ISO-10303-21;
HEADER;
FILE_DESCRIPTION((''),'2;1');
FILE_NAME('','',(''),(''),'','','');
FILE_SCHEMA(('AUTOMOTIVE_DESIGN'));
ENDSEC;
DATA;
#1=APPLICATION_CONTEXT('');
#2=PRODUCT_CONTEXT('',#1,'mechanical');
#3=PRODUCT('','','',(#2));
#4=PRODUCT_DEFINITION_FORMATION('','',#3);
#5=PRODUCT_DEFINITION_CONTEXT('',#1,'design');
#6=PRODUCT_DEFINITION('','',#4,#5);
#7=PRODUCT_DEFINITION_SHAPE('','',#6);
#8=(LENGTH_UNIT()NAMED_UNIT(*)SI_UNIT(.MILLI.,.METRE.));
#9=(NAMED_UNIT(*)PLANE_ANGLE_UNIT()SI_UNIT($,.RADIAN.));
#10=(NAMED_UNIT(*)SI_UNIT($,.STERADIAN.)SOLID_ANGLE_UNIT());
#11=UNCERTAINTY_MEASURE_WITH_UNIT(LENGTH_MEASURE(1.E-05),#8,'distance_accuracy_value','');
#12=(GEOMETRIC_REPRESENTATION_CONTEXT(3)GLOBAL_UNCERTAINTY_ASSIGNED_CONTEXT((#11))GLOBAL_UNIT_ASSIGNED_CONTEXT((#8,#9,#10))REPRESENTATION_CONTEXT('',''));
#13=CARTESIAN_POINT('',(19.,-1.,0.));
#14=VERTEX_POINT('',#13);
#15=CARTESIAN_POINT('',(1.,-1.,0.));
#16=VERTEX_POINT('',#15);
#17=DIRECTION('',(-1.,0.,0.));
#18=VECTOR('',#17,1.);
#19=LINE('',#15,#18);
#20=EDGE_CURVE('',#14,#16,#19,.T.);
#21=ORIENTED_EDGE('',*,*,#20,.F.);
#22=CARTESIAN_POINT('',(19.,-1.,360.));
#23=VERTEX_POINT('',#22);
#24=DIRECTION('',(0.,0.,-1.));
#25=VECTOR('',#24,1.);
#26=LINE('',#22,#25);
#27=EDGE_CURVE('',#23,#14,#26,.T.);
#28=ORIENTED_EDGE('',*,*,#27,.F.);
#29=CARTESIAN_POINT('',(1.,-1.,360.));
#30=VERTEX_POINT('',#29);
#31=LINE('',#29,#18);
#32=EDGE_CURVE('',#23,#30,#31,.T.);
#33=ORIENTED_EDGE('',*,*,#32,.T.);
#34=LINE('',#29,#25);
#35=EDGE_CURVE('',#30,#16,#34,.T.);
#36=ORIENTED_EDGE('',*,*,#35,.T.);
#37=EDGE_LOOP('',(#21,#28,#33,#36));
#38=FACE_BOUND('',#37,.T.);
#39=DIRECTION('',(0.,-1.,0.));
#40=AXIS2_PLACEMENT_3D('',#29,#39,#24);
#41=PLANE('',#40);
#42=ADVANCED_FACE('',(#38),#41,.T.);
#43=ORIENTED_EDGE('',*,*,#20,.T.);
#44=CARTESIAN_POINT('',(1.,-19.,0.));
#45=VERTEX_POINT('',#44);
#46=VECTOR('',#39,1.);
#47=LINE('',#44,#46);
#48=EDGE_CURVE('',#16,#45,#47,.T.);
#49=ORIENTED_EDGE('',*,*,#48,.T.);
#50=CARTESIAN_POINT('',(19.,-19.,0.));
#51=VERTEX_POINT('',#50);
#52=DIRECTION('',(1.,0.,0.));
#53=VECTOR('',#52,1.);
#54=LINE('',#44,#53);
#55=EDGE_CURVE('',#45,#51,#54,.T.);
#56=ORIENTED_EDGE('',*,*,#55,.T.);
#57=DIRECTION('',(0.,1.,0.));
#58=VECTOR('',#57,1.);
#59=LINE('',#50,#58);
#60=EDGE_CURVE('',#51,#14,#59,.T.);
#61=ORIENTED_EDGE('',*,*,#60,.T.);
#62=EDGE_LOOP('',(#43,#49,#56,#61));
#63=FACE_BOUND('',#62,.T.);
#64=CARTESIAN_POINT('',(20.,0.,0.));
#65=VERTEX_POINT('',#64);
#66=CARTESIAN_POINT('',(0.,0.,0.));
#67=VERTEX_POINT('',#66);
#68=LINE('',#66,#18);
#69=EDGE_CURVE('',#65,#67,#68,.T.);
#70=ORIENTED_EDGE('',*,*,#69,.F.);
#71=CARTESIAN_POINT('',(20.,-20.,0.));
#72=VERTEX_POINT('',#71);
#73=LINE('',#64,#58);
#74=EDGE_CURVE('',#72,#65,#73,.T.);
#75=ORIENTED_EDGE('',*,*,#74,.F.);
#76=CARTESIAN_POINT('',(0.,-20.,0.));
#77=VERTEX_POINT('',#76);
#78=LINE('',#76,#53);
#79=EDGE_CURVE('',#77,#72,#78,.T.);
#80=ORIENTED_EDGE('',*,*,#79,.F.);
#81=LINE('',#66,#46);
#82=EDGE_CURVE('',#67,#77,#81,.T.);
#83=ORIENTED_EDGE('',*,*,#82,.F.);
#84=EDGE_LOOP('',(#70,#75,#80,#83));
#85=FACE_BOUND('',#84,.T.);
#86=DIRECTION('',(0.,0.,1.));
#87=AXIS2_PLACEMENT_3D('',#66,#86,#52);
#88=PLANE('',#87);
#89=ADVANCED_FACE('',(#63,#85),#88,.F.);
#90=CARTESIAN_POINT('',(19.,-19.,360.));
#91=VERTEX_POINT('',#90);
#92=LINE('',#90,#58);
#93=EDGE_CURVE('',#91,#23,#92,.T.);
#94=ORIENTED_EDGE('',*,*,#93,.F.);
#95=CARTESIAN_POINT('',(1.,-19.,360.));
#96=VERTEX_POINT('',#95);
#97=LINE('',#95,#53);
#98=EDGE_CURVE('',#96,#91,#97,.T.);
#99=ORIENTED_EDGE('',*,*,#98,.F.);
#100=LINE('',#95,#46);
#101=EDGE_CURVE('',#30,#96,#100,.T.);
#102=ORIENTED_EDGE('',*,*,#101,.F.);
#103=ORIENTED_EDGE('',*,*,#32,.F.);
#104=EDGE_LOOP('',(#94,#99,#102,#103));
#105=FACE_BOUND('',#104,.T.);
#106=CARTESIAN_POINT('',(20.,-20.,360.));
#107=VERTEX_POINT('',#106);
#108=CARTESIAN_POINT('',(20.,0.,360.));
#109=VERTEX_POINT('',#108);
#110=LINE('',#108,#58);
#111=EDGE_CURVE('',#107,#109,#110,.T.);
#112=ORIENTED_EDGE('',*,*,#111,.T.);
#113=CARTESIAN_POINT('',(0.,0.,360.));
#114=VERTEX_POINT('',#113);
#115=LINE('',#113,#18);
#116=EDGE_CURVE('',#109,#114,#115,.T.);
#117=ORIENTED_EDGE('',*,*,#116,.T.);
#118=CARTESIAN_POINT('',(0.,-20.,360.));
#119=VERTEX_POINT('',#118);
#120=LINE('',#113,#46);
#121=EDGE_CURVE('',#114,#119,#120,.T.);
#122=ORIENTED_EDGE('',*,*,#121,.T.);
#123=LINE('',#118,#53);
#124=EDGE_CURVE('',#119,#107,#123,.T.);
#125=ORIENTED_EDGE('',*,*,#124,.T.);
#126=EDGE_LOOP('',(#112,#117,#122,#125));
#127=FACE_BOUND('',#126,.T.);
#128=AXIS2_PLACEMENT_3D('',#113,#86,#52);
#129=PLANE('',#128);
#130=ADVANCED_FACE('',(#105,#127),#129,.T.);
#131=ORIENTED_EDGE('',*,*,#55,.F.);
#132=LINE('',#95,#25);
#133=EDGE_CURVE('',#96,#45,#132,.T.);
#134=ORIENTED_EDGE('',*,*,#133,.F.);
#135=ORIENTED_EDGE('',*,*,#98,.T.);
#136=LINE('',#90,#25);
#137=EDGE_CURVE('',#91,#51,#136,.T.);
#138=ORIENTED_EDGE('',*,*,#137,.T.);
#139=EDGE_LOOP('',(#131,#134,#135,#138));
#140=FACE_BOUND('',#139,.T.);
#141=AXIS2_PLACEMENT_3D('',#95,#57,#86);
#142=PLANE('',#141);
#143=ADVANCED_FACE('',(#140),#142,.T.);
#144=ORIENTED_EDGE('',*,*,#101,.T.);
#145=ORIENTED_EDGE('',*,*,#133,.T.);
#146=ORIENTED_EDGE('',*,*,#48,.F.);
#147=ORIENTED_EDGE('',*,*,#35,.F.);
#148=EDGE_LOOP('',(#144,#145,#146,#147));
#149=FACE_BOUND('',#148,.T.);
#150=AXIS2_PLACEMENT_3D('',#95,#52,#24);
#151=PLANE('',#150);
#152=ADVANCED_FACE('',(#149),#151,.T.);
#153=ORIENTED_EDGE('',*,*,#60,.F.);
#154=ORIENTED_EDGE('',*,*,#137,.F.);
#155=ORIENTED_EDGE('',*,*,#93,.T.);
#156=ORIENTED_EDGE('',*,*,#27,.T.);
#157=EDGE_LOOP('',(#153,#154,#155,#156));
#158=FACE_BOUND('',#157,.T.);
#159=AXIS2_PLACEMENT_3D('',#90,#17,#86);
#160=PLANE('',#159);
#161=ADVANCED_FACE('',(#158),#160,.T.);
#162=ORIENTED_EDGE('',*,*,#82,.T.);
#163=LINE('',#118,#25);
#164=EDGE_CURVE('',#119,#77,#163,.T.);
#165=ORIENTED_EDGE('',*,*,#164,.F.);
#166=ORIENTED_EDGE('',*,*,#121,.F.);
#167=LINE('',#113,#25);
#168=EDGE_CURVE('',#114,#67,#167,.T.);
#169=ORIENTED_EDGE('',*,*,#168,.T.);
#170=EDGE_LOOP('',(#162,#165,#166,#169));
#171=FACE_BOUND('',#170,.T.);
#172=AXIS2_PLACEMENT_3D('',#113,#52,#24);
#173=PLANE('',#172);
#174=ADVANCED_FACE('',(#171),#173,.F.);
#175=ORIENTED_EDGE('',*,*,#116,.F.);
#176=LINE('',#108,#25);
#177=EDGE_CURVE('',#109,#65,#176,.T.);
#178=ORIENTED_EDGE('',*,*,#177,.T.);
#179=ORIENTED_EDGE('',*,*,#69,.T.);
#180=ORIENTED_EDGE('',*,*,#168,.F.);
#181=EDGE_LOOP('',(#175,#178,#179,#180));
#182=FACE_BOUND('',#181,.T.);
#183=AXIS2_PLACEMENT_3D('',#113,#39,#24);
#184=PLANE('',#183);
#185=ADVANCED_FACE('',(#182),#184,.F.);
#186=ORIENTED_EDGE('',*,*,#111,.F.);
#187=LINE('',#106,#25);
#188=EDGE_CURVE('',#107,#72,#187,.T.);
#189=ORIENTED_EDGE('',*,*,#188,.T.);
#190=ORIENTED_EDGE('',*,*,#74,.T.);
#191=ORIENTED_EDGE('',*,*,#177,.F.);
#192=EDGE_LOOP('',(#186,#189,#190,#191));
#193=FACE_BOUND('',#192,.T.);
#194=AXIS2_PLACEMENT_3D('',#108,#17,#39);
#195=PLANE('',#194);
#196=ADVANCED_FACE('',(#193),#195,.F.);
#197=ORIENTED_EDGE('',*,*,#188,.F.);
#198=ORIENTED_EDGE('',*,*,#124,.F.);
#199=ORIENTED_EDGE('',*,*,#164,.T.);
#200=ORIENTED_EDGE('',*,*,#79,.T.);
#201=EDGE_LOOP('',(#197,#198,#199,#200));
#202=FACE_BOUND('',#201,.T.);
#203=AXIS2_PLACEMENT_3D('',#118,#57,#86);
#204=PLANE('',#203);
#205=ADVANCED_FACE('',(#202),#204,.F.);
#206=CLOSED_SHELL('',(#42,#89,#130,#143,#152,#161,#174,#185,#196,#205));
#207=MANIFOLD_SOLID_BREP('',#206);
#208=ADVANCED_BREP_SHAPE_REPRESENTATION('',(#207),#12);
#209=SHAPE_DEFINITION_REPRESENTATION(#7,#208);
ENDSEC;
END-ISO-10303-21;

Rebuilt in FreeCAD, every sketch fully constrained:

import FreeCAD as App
import Part
import Sketcher
from FreeCAD import Vector
Q = App.Units.Quantity

doc = App.newDocument("Part")
body = doc.addObject("PartDesign::Body", "Body")

sketch1 = body.newObject("Sketcher::SketchObject", "Sketch")
sketch1.AttachmentSupport = (doc.getObject("XY_Plane"), [""])
sketch1.MapMode = "FlatFace"
sketch1.addGeometry([
    Part.LineSegment(Vector(0, 0, 0), Vector(0, -20, 0)),
    Part.LineSegment(Vector(0, -20, 0), Vector(20, -20, 0)),
    Part.LineSegment(Vector(20, -20, 0), Vector(20, 0, 0)),
    Part.LineSegment(Vector(20, 0, 0), Vector(0, 0, 0)),
    Part.LineSegment(Vector(19, -19, 0), Vector(1, -19, 0)),
    Part.LineSegment(Vector(1, -19, 0), Vector(1, -1, 0)),
    Part.LineSegment(Vector(1, -1, 0), Vector(19, -1, 0)),
    Part.LineSegment(Vector(19, -1, 0), Vector(19, -19, 0)),
], False)
sketch1.addConstraint([
    Sketcher.Constraint("Coincident", 0, 2, 1, 1),
    Sketcher.Constraint("Coincident", 1, 2, 2, 1),
    Sketcher.Constraint("Coincident", 2, 2, 3, 1),
    Sketcher.Constraint("Coincident", 3, 2, 0, 1),
    Sketcher.Constraint("Coincident", 4, 2, 5, 1),
    Sketcher.Constraint("Coincident", 5, 2, 6, 1),
    Sketcher.Constraint("Coincident", 6, 2, 7, 1),
    Sketcher.Constraint("Coincident", 7, 2, 4, 1),
    Sketcher.Constraint("Vertical", 0),
    Sketcher.Constraint("Horizontal", 1),
    Sketcher.Constraint("Vertical", 2),
    Sketcher.Constraint("Horizontal", 3),
    Sketcher.Constraint("Horizontal", 4),
    Sketcher.Constraint("Vertical", 5),
    Sketcher.Constraint("Horizontal", 6),
    Sketcher.Constraint("Vertical", 7),
    Sketcher.Constraint("Coincident", 3, 2, -1, 1),
    Sketcher.Constraint("Equal", 3, 0),
    Sketcher.Constraint("Equal", 6, 5),
    Sketcher.Constraint("DistanceX", 1, 1, 1, 2, Q("20 mm")),
    Sketcher.Constraint("DistanceX", 4, 2, 4, 1, Q("18 mm")),
    Sketcher.Constraint("DistanceX", -1, 1, 4, 2, Q("1 mm")),
    Sketcher.Constraint("DistanceY", 4, 2, -1, 1, Q("19 mm")),
])
pad1 = body.newObject("PartDesign::Pad", "Pad")
pad1.Profile = sketch1
pad1.Length = 360

doc.recompute()
